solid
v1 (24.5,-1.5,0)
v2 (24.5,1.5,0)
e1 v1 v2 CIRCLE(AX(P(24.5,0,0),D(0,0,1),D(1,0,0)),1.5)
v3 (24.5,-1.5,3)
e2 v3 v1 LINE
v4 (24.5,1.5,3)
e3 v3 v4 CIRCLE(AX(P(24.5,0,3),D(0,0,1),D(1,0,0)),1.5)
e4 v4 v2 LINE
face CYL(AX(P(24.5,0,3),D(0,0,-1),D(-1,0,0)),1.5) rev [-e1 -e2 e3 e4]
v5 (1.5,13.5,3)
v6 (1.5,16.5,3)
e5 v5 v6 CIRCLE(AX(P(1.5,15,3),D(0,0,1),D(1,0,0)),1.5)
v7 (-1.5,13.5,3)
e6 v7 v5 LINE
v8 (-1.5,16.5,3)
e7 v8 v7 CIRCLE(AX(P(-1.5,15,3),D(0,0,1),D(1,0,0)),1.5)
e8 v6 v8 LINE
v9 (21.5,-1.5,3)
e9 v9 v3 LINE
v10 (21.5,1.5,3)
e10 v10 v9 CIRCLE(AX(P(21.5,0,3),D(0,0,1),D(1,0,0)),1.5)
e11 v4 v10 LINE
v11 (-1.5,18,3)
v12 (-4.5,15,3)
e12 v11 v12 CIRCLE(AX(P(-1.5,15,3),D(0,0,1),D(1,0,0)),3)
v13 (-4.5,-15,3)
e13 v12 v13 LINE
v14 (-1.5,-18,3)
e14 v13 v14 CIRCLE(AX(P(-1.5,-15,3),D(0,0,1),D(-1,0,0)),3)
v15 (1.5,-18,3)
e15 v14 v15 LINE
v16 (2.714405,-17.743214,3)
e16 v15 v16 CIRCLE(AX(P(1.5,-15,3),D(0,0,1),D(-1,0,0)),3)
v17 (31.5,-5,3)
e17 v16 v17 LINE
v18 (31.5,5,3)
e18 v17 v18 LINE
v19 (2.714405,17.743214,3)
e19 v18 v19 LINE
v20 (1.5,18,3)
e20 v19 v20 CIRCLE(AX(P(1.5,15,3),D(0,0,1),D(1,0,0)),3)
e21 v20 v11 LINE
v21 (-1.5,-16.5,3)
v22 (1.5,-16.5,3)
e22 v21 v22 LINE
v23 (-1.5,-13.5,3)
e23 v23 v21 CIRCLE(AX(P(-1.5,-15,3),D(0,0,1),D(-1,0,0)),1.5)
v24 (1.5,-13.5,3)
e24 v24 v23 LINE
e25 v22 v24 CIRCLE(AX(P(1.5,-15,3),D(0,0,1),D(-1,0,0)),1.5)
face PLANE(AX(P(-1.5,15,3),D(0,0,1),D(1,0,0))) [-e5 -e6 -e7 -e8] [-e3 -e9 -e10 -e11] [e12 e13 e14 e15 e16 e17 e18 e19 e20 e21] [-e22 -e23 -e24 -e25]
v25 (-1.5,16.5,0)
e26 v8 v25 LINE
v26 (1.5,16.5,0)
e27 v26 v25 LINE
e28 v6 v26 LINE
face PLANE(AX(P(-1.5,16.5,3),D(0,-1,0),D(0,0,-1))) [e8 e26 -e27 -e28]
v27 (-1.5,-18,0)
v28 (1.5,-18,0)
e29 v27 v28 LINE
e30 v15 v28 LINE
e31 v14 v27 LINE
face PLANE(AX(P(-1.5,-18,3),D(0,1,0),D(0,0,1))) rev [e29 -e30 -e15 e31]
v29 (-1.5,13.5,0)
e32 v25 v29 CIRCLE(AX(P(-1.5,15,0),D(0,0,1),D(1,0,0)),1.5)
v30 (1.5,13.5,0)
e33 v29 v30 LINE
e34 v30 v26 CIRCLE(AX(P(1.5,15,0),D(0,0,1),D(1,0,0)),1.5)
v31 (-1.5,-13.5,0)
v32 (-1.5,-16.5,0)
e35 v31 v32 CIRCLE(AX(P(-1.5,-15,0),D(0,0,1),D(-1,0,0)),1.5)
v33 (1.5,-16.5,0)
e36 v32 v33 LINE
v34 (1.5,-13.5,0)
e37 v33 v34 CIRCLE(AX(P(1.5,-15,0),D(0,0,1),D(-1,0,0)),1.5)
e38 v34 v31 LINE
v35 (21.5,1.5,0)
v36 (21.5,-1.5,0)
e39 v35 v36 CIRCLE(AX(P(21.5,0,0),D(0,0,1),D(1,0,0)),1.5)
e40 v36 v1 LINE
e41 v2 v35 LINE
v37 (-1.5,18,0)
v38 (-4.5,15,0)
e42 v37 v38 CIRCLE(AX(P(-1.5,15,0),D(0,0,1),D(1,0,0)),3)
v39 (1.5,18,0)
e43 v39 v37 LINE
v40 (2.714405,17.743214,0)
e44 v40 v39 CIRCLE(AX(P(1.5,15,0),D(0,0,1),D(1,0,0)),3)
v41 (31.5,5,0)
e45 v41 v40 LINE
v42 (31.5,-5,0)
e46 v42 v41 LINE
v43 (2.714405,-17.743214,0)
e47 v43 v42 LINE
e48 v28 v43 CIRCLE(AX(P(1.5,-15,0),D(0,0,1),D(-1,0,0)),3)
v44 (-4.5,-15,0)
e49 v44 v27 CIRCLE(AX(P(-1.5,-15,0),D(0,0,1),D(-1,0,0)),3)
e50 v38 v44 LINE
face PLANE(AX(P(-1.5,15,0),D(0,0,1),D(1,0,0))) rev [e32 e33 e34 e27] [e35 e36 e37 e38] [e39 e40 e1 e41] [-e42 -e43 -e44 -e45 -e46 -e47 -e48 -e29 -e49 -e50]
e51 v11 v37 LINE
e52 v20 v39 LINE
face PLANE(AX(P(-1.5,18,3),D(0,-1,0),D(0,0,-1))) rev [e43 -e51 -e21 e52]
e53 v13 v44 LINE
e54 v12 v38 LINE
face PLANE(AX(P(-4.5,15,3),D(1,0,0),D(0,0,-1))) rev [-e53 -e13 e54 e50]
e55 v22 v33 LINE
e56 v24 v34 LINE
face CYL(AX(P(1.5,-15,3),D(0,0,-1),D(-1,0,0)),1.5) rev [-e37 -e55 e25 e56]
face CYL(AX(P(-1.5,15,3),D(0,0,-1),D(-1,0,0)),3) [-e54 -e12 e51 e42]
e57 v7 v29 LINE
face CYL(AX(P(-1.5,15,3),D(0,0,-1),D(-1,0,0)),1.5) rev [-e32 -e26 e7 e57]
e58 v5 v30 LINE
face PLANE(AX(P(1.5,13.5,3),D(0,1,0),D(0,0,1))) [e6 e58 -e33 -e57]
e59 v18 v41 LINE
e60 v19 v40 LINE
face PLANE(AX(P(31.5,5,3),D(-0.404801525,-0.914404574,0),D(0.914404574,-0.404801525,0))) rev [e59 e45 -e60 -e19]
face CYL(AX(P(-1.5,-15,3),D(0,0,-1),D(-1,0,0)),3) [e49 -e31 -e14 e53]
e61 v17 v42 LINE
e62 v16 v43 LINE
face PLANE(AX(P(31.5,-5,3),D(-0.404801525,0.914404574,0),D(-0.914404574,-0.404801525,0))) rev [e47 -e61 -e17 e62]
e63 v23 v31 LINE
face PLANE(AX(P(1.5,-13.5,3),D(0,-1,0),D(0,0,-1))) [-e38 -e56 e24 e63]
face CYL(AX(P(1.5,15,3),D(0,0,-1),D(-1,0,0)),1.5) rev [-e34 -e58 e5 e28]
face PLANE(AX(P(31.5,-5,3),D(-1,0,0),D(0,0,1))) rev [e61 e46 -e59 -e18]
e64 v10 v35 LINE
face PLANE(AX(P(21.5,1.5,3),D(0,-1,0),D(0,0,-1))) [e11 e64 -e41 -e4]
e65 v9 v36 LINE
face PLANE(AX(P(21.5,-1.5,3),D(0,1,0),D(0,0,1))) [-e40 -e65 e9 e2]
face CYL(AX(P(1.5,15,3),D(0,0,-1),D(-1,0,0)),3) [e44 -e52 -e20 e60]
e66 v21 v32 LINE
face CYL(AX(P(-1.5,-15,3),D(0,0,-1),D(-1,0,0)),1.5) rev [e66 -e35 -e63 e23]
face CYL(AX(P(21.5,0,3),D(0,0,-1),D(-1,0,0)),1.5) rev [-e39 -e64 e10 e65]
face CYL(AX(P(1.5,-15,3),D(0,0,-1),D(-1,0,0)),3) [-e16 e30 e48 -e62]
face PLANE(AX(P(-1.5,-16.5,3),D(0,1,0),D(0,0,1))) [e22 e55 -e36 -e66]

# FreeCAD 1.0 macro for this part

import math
import FreeCAD as App
import Part
import Sketcher
Q = App.Units.Quantity

doc = App.newDocument("Part")
body = doc.addObject("PartDesign::Body", "Body")

# Sketch on XY plane
sketch1 = doc.addObject("Sketcher::SketchObject", "Sketch")
body.addObject(sketch1)
sketch1.AttachmentSupport = (doc.XY_Plane, [""])
sketch1.MapMode = "FlatFace"
sketch1.addGeometry(Part.LineSegment(App.Vector(31.5, -5, 0), App.Vector(31.5, 5, 0)), False)
sketch1.addGeometry(Part.LineSegment(App.Vector(31.5, 5, 0), App.Vector(2.714405, 17.743214, 0)), False)
sketch1.addGeometry(Part.ArcOfCircle(Part.Circle(App.Vector(1.5, 15, 0), App.Vector(0, 0, 1), 3), math.radians(66.12131), math.radians(90)), False)
sketch1.addGeometry(Part.LineSegment(App.Vector(1.5, 18, 0), App.Vector(-1.5, 18, 0)), False)
sketch1.addGeometry(Part.ArcOfCircle(Part.Circle(App.Vector(-1.5, 15, 0), App.Vector(0, 0, 1), 3), math.radians(90), math.radians(180)), False)
sketch1.addGeometry(Part.LineSegment(App.Vector(-4.5, 15, 0), App.Vector(-4.5, -15, 0)), False)
sketch1.addGeometry(Part.ArcOfCircle(Part.Circle(App.Vector(-1.5, -15, 0), App.Vector(0, 0, 1), 3), math.radians(180), math.radians(270)), False)
sketch1.addGeometry(Part.LineSegment(App.Vector(-1.5, -18, 0), App.Vector(1.5, -18, 0)), False)
sketch1.addGeometry(Part.ArcOfCircle(Part.Circle(App.Vector(1.5, -15, 0), App.Vector(0, 0, 1), 3), math.radians(-90), math.radians(-66.12131)), False)
sketch1.addGeometry(Part.LineSegment(App.Vector(2.714405, -17.743214, 0), App.Vector(31.5, -5, 0)), False)
sketch1.addGeometry(Part.LineSegment(App.Vector(-1.5, -13.5, 0), App.Vector(1.5, -13.5, 0)), False)
sketch1.addGeometry(Part.ArcOfCircle(Part.Circle(App.Vector(1.5, -15, 0), App.Vector(0, 0, 1), 1.5), math.radians(-90), math.radians(90)), False)
sketch1.addGeometry(Part.LineSegment(App.Vector(1.5, -16.5, 0), App.Vector(-1.5, -16.5, 0)), False)
sketch1.addGeometry(Part.ArcOfCircle(Part.Circle(App.Vector(-1.5, -15, 0), App.Vector(0, 0, 1), 1.5), math.radians(90), math.radians(270)), False)
sketch1.addGeometry(Part.ArcOfCircle(Part.Circle(App.Vector(-1.5, 15, 0), App.Vector(0, 0, 1), 1.5), math.radians(90), math.radians(270)), False)
sketch1.addGeometry(Part.LineSegment(App.Vector(-1.5, 16.5, 0), App.Vector(1.5, 16.5, 0)), False)
sketch1.addGeometry(Part.ArcOfCircle(Part.Circle(App.Vector(1.5, 15, 0), App.Vector(0, 0, 1), 1.5), math.radians(-90), math.radians(90)), False)
sketch1.addGeometry(Part.LineSegment(App.Vector(1.5, 13.5, 0), App.Vector(-1.5, 13.5, 0)), False)
sketch1.addGeometry(Part.LineSegment(App.Vector(24.5, -1.5, 0), App.Vector(21.5, -1.5, 0)), False)
sketch1.addGeometry(Part.ArcOfCircle(Part.Circle(App.Vector(21.5, 0, 0), App.Vector(0, 0, 1), 1.5), math.radians(90), math.radians(270)), False)
sketch1.addGeometry(Part.LineSegment(App.Vector(21.5, 1.5, 0), App.Vector(24.5, 1.5, 0)), False)
sketch1.addGeometry(Part.ArcOfCircle(Part.Circle(App.Vector(24.5, 0, 0), App.Vector(0, 0, 1), 1.5), math.radians(-90), math.radians(90)), False)
sketch1.addConstraint(Sketcher.Constraint("Coincident", 0, 2, 1, 1))
sketch1.addConstraint(Sketcher.Constraint("Tangent", 1, 2, 2, 1))
sketch1.addConstraint(Sketcher.Constraint("Tangent", 2, 2, 3, 1))
sketch1.addConstraint(Sketcher.Constraint("Tangent", 3, 2, 4, 1))
sketch1.addConstraint(Sketcher.Constraint("Tangent", 4, 2, 5, 1))
sketch1.addConstraint(Sketcher.Constraint("Tangent", 5, 2, 6, 1))
sketch1.addConstraint(Sketcher.Constraint("Tangent", 6, 2, 7, 1))
sketch1.addConstraint(Sketcher.Constraint("Tangent", 7, 2, 8, 1))
sketch1.addConstraint(Sketcher.Constraint("Tangent", 8, 2, 9, 1))
sketch1.addConstraint(Sketcher.Constraint("Coincident", 9, 2, 0, 1))
sketch1.addConstraint(Sketcher.Constraint("Tangent", 10, 2, 11, 2))
sketch1.addConstraint(Sketcher.Constraint("Tangent", 11, 1, 12, 1))
sketch1.addConstraint(Sketcher.Constraint("Tangent", 12, 2, 13, 2))
sketch1.addConstraint(Sketcher.Constraint("Tangent", 13, 1, 10, 1))
sketch1.addConstraint(Sketcher.Constraint("Tangent", 14, 1, 15, 1))
sketch1.addConstraint(Sketcher.Constraint("Tangent", 15, 2, 16, 2))
sketch1.addConstraint(Sketcher.Constraint("Tangent", 16, 1, 17, 1))
sketch1.addConstraint(Sketcher.Constraint("Tangent", 17, 2, 14, 2))
sketch1.addConstraint(Sketcher.Constraint("Tangent", 18, 2, 19, 2))
sketch1.addConstraint(Sketcher.Constraint("Tangent", 19, 1, 20, 1))
sketch1.addConstraint(Sketcher.Constraint("Tangent", 20, 2, 21, 2))
sketch1.addConstraint(Sketcher.Constraint("Tangent", 21, 1, 18, 1))
sketch1.addConstraint(Sketcher.Constraint("Vertical", 0))
sketch1.addConstraint(Sketcher.Constraint("Horizontal", 3))
sketch1.addConstraint(Sketcher.Constraint("Vertical", 5))
sketch1.addConstraint(Sketcher.Constraint("Horizontal", 7))
sketch1.addConstraint(Sketcher.Constraint("Horizontal", 10))
sketch1.addConstraint(Sketcher.Constraint("Horizontal", 12))
sketch1.addConstraint(Sketcher.Constraint("Horizontal", 15))
sketch1.addConstraint(Sketcher.Constraint("Horizontal", 17))
sketch1.addConstraint(Sketcher.Constraint("Horizontal", 18))
sketch1.addConstraint(Sketcher.Constraint("Horizontal", 20))
sketch1.addConstraint(Sketcher.Constraint("Coincident", 11, 3, 8, 3))
sketch1.addConstraint(Sketcher.Constraint("Coincident", 13, 3, 6, 3))
sketch1.addConstraint(Sketcher.Constraint("Coincident", 14, 3, 4, 3))
sketch1.addConstraint(Sketcher.Constraint("Coincident", 16, 3, 2, 3))
sketch1.addConstraint(Sketcher.Constraint("Equal", 4, 6))
sketch1.addConstraint(Sketcher.Constraint("Equal", 13, 14))
sketch1.addConstraint(Sketcher.Constraint("Equal", 16, 19))
sketch1.addConstraint(Sketcher.Constraint("Symmetric", 2, 3, 6, 3, -1, 1))
sketch1.addConstraint(Sketcher.Constraint("Symmetric", 1, 2, 8, 2, -1))
sketch1.addConstraint(Sketcher.Constraint("PointOnObject", 19, 3, -1))
sketch1.addConstraint(Sketcher.Constraint("Equal", 17, 18))
sketch1.addConstraint(Sketcher.Constraint("Radius", 2, Q("3 mm")))
sketch1.addConstraint(Sketcher.Constraint("Radius", 11, Q("1.5 mm")))
sketch1.addConstraint(Sketcher.Constraint("DistanceX", 3, 2, 3, 1, Q("3 mm")))
sketch1.addConstraint(Sketcher.Constraint("DistanceY", 0, 1, 0, 2, Q("10 mm")))
sketch1.addConstraint(Sketcher.Constraint("DistanceY", 5, 2, 5, 1, Q("30 mm")))
sketch1.addConstraint(Sketcher.Constraint("DistanceX", 11, 3, 19, 3, Q("20 mm")))
sketch1.addConstraint(Sketcher.Constraint("DistanceX", 21, 3, 0, 2, Q("7 mm")))
pad1 = doc.addObject("PartDesign::Pad", "Pad")
body.addObject(pad1)
pad1.Profile = sketch1
pad1.Length = 3

doc.recompute()
